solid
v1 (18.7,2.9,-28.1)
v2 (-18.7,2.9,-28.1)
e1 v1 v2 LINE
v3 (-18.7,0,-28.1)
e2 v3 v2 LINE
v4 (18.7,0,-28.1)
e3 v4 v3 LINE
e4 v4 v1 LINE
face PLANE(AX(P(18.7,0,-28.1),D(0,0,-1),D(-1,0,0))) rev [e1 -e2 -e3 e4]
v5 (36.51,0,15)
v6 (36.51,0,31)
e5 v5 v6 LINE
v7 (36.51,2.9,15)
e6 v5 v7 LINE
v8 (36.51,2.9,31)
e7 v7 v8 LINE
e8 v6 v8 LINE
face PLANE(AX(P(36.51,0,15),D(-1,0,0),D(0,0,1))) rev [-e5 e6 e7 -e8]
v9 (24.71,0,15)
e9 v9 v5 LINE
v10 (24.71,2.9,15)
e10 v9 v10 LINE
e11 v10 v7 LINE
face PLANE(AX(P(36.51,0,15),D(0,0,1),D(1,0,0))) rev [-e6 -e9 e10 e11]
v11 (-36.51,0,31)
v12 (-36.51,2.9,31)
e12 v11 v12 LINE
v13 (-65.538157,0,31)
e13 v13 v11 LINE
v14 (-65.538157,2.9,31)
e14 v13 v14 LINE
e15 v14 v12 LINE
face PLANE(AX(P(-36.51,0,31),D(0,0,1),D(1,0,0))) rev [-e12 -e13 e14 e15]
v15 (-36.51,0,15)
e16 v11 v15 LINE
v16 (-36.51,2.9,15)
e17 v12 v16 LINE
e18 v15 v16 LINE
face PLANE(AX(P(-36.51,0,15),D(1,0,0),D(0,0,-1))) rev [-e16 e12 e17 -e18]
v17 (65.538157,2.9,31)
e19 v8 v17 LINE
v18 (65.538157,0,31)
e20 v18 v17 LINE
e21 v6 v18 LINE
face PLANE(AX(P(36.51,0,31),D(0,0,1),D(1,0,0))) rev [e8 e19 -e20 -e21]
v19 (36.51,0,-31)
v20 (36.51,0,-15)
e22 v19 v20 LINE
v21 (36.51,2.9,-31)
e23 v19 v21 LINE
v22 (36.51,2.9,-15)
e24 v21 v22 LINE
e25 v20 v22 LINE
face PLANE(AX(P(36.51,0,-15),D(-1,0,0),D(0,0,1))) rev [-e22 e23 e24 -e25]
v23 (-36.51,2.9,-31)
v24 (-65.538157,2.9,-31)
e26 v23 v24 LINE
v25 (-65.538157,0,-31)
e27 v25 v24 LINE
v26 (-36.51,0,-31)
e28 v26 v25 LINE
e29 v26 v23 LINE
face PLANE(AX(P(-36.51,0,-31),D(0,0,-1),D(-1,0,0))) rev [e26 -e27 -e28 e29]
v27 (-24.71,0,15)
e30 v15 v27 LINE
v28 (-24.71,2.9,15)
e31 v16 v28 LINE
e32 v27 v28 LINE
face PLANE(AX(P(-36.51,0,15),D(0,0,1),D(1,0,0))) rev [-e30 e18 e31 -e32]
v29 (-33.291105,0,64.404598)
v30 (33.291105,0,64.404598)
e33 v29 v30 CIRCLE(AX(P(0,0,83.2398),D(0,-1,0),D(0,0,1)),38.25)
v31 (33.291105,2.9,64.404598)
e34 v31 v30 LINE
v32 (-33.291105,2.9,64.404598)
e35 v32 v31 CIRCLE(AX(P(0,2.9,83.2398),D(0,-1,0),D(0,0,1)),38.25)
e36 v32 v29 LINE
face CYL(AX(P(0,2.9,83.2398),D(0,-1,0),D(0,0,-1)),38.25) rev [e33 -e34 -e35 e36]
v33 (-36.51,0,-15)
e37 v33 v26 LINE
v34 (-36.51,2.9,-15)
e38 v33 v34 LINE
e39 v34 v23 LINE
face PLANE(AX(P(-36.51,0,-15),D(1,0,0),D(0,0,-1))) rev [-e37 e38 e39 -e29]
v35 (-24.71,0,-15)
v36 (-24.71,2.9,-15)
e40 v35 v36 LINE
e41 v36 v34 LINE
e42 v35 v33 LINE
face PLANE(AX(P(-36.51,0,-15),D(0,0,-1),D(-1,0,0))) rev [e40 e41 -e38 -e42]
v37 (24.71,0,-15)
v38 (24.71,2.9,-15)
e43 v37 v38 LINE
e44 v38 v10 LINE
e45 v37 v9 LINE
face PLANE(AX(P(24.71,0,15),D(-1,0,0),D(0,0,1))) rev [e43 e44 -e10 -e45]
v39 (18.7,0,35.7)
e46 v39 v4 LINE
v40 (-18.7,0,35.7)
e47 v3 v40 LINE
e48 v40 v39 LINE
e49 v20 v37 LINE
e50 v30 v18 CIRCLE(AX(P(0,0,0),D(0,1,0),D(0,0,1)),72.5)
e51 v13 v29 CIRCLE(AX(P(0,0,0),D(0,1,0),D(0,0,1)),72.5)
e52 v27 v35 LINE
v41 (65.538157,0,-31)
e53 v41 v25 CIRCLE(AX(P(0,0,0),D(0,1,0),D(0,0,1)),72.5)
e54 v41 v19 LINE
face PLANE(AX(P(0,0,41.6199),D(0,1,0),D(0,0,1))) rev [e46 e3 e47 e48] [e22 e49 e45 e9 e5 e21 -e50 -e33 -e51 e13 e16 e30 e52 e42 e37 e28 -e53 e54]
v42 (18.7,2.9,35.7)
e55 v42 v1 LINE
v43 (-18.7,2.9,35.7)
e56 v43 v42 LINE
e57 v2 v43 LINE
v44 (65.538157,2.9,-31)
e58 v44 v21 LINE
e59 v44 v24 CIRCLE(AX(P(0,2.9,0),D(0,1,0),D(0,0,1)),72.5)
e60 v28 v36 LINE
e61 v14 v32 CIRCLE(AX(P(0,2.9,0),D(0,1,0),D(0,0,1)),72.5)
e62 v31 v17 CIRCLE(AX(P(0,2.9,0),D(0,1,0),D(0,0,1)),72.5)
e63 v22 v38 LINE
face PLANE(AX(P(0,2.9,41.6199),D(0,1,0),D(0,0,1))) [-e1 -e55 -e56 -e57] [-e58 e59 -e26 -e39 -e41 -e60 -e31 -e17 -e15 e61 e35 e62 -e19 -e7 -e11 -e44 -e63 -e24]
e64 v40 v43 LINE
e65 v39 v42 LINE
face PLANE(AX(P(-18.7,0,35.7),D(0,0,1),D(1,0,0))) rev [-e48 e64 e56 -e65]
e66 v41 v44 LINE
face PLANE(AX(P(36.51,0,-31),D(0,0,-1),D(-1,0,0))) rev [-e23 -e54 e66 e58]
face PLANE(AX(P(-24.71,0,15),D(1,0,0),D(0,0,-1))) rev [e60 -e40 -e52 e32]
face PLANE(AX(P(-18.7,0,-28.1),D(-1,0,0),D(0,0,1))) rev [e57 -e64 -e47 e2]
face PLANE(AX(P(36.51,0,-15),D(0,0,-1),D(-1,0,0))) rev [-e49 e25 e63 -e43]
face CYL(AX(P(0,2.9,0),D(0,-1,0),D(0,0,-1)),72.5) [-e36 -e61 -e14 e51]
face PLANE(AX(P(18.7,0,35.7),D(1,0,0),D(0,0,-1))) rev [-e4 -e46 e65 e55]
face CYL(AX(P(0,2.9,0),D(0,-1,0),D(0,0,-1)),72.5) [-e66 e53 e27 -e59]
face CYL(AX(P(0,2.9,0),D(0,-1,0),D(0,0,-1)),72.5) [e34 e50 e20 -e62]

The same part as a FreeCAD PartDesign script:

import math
import FreeCAD as App
import Part
import Sketcher


def add_polygon(sketch, points):
    """Adds a closed chain of lines whose ends are joined by coincident constraints."""
    first, n = sketch.GeometryCount, len(points)
    for a, b in zip(points, points[1:] + points[:1]):
        sketch.addGeometry(Part.LineSegment(App.Vector(*a, 0), App.Vector(*b, 0)), False)
    for i in range(n):
        sketch.addConstraint(Sketcher.Constraint("Coincident", first + i, 2, first + (i + 1) % n, 1))

doc = App.newDocument("Part")
body = doc.addObject("PartDesign::Body", "Body")

sketch1 = body.newObject("Sketcher::SketchObject", "Sketch")
sketch1.AttachmentSupport = (doc.getObject("XZ_Plane"), [""])
sketch1.MapMode = "FlatFace"
sketch1.addGeometry([
    Part.ArcOfCircle(Part.Circle(App.Vector(0, 0, 0), App.Vector(0, 0, 1), 72), math.radians(117), math.radians(423)),
    Part.ArcOfCircle(Part.Circle(App.Vector(0, 83, 0), App.Vector(0, 0, 1), 38), math.radians(-150), math.radians(-30)),
], False)
sketch1.addConstraint([
    Sketcher.Constraint("Coincident", 0, 1, 1, 1),
    Sketcher.Constraint("Coincident", 1, 2, 0, 2),
    Sketcher.Constraint("Coincident", 0, 3, -1, 1),
    Sketcher.Constraint("PointOnObject", 1, 3, -2),
    Sketcher.Constraint("Radius", 0, 72.5),
    Sketcher.Constraint("Radius", 1, 38.25),
    Sketcher.Constraint("DistanceY", -1, 1, 1, 3, 83.2398),
])
pad1 = body.newObject("PartDesign::Pad", "Pad")
pad1.Profile = sketch1
pad1.Length = 2.9
pad1.Reversed = True

sketch2 = body.newObject("Sketcher::SketchObject", "Sketch001")
sketch2.AttachmentSupport = (doc.getObject("XZ_Plane"), [""])
sketch2.MapMode = "FlatFace"
sketch2.AttachmentOffset = App.Placement(App.Vector(0, 0, -2.9), App.Rotation())
add_polygon(sketch2, [(-19, -28), (-19, 36), (19, 36), (19, -28)])
sketch2.addConstraint([
    Sketcher.Constraint("Vertical", 0),
    Sketcher.Constraint("Horizontal", 1),
    Sketcher.Constraint("Vertical", 2),
    Sketcher.Constraint("Horizontal", 3),
    Sketcher.Constraint("DistanceX", 1, 1, 1, 2, 37.4),
    Sketcher.Constraint("DistanceY", 0, 1, 0, 2, 63.8),
    Sketcher.Constraint("DistanceX", 0, 2, -1, 1, 18.7),
    Sketcher.Constraint("DistanceY", -1, 1, 0, 2, 35.7),
])
pocket1 = body.newObject("PartDesign::Pocket", "Pocket")
pocket1.Profile = sketch2
pocket1.Type = "ThroughAll"
pocket1.Reversed = True

sketch3 = body.newObject("Sketcher::SketchObject", "Sketch002")
sketch3.AttachmentSupport = (doc.getObject("XZ_Plane"), [""])
sketch3.MapMode = "FlatFace"
sketch3.AttachmentOffset = App.Placement(App.Vector(0, 0, -2.9), App.Rotation())
sketch3.addGeometry([
    Part.LineSegment(App.Vector(-37, 15, 0), App.Vector(-25, 15, 0)),
    Part.LineSegment(App.Vector(-25, 15, 0), App.Vector(-25, -15, 0)),
    Part.LineSegment(App.Vector(-25, -15, 0), App.Vector(-37, -15, 0)),
    Part.LineSegment(App.Vector(-37, -15, 0), App.Vector(-37, -31, 0)),
    Part.LineSegment(App.Vector(-37, -31, 0), App.Vector(-66, -31, 0)),
    Part.ArcOfCircle(Part.Circle(App.Vector(0, 0, 0), App.Vector(0, 0, 1), 73), math.radians(155), math.radians(205)),
    Part.LineSegment(App.Vector(-66, 31, 0), App.Vector(-37, 31, 0)),
    Part.LineSegment(App.Vector(-37, 31, 0), App.Vector(-37, 15, 0)),
    Part.LineSegment(App.Vector(37, 31, 0), App.Vector(66, 31, 0)),
    Part.ArcOfCircle(Part.Circle(App.Vector(0, 0, 0), App.Vector(0, 0, 1), 73), math.radians(-25), math.radians(25)),
    Part.LineSegment(App.Vector(66, -31, 0), App.Vector(37, -31, 0)),
    Part.LineSegment(App.Vector(37, -31, 0), App.Vector(37, -15, 0)),
    Part.LineSegment(App.Vector(37, -15, 0), App.Vector(25, -15, 0)),
    Part.LineSegment(App.Vector(25, -15, 0), App.Vector(25, 15, 0)),
    Part.LineSegment(App.Vector(25, 15, 0), App.Vector(37, 15, 0)),
    Part.LineSegment(App.Vector(37, 15, 0), App.Vector(37, 31, 0)),
], False)
sketch3.addConstraint([
    Sketcher.Constraint("Coincident", 0, 2, 1, 1),
    Sketcher.Constraint("Coincident", 1, 2, 2, 1),
    Sketcher.Constraint("Coincident", 2, 2, 3, 1),
    Sketcher.Constraint("Coincident", 3, 2, 4, 1),
    Sketcher.Constraint("Coincident", 4, 2, 5, 2),
    Sketcher.Constraint("Coincident", 5, 1, 6, 1),
    Sketcher.Constraint("Coincident", 6, 2, 7, 1),
    Sketcher.Constraint("Coincident", 7, 2, 0, 1),
    Sketcher.Constraint("Coincident", 8, 2, 9, 2),
    Sketcher.Constraint("Coincident", 9, 1, 10, 1),
    Sketcher.Constraint("Coincident", 10, 2, 11, 1),
    Sketcher.Constraint("Coincident", 11, 2, 12, 1),
    Sketcher.Constraint("Coincident", 12, 2, 13, 1),
    Sketcher.Constraint("Coincident", 13, 2, 14, 1),
    Sketcher.Constraint("Coincident", 14, 2, 15, 1),
    Sketcher.Constraint("Coincident", 15, 2, 8, 1),
    Sketcher.Constraint("Horizontal", 0),
    Sketcher.Constraint("Vertical", 1),
    Sketcher.Constraint("Horizontal", 2),
    Sketcher.Constraint("Vertical", 3),
    Sketcher.Constraint("Horizontal", 4),
    Sketcher.Constraint("Horizontal", 6),
    Sketcher.Constraint("Vertical", 7),
    Sketcher.Constraint("Horizontal", 8),
    Sketcher.Constraint("Horizontal", 10),
    Sketcher.Constraint("Vertical", 11),
    Sketcher.Constraint("Horizontal", 12),
    Sketcher.Constraint("Vertical", 13),
    Sketcher.Constraint("Horizontal", 14),
    Sketcher.Constraint("Vertical", 15),
    Sketcher.Constraint("Coincident", 5, 3, -1, 1),
    Sketcher.Constraint("Coincident", 9, 3, -1, 1),
    Sketcher.Constraint("Equal", 5, 9),
    Sketcher.Constraint("Symmetric", 6, 2, 10, 2, -1, 1),
    Sketcher.Constraint("Symmetric", 0, 2, 12, 2, -1, 1),
    Sketcher.Constraint("Symmetric", 2, 2, 14, 2, -1, 1),
    Sketcher.Constraint("Symmetric", 3, 2, 10, 2, -2),
    Sketcher.Constraint("Horizontal", 6, 2, 8, 2),
    Sketcher.Constraint("Horizontal", 2, 2, 11, 2),
    Sketcher.Constraint("Radius", 5, 72.5),
    Sketcher.Constraint("DistanceY", 1, 2, 1, 1, 30.0),
    Sketcher.Constraint("DistanceY", 3, 2, 3, 1, 16.0),
    Sketcher.Constraint("DistanceX", 0, 1, 0, 2, 11.8),
    Sketcher.Constraint("DistanceX", 0, 2, -1, 1, 24.71),
])
pocket2 = body.newObject("PartDesign::Pocket", "Pocket001")
pocket2.Profile = sketch3
pocket2.Type = "ThroughAll"
pocket2.Reversed = True

doc.recompute()
